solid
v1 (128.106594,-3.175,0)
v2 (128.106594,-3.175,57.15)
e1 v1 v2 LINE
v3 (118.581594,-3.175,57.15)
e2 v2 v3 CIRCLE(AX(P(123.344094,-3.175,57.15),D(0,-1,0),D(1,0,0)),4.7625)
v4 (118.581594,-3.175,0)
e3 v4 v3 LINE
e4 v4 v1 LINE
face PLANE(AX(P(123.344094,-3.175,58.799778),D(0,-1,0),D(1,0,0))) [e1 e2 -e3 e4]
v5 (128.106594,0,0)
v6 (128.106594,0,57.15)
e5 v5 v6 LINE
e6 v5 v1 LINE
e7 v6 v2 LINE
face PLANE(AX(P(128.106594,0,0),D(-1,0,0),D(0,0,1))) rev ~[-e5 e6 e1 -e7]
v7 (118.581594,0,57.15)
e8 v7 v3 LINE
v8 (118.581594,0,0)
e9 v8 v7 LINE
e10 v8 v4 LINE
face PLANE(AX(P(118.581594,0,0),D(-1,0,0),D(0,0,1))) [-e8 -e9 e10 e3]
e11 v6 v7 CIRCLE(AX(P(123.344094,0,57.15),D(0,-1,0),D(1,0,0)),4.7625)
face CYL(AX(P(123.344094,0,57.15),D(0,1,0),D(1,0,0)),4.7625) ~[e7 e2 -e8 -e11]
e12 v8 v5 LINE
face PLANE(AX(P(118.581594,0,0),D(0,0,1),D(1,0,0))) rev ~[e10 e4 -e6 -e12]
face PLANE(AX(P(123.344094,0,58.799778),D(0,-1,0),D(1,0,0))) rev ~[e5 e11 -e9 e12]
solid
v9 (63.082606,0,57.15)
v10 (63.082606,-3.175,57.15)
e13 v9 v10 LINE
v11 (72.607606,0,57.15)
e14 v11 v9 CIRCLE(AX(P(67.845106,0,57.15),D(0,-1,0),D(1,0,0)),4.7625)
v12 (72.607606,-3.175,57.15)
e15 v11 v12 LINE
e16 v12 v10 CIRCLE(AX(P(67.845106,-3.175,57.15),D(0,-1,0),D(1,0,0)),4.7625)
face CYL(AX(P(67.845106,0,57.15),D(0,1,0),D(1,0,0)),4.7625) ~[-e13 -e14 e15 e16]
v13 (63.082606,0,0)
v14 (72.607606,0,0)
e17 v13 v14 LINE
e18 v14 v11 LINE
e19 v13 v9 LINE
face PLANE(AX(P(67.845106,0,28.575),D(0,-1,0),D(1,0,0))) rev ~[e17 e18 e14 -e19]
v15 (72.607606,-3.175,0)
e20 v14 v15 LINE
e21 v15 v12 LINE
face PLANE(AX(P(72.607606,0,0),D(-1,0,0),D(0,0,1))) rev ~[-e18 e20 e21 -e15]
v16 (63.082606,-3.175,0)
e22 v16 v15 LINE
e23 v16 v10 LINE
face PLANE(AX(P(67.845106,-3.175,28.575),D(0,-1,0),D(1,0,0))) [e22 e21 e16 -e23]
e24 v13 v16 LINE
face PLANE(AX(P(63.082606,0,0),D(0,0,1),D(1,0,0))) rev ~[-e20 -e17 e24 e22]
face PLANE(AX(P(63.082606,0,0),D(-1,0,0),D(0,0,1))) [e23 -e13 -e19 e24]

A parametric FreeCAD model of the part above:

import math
import FreeCAD as App
import Part
import Sketcher
from FreeCAD import Vector
Q = App.Units.Quantity

doc = App.newDocument("Part")
params = doc.addObject("Spreadsheet::Sheet", "Params")
for row, (alias, value) in enumerate([
    ("sketch1_radius", "0.1875 in"),
    ("sketch1_height", "2.25 in"),
    ("pad1_length", "0.125 in"),
], start=1):
    params.set(f"A{row}", alias)
    params.set(f"B{row}", "=" + value)
    params.setAlias(f"B{row}", alias)

body = doc.addObject("PartDesign::Body", "Body")
body.AllowCompound = True

# Sketch on XZ plane
sketch1 = body.newObject("Sketcher::SketchObject", "Sketch")
sketch1.AttachmentSupport = (doc.getObject("XZ_Plane"), [""])
sketch1.MapMode = "FlatFace"
sketch1.addGeometry([
    Part.LineSegment(Vector(63.1, 57.1, 0), Vector(63.1, 0, 0)),  # 0
    Part.LineSegment(Vector(63.1, 0, 0), Vector(72.6, 0, 0)),  # 1
    Part.LineSegment(Vector(72.6, 0, 0), Vector(72.6, 57.1, 0)),  # 2
    Part.ArcOfCircle(Part.Circle(Vector(67.8, 57.1, 0), Vector(0, 0, 1), 4.8), math.radians(0), math.radians(180)),  # 3
    Part.ArcOfCircle(Part.Circle(Vector(123.3, 57.1, 0), Vector(0, 0, 1), 4.8), math.radians(0), math.radians(180)),  # 4
    Part.LineSegment(Vector(118.6, 57.1, 0), Vector(118.6, 0, 0)),  # 5
    Part.LineSegment(Vector(118.6, 0, 0), Vector(128.1, 0, 0)),  # 6
    Part.LineSegment(Vector(128.1, 0, 0), Vector(128.1, 57.1, 0)),  # 7
], False)
sketch1.addConstraint([
    Sketcher.Constraint("Coincident", 0, 2, 1, 1),
    Sketcher.Constraint("Coincident", 1, 2, 2, 1),
    Sketcher.Constraint("Tangent", 2, 2, 3, 1),
    Sketcher.Constraint("Tangent", 3, 2, 0, 1),
    Sketcher.Constraint("Tangent", 4, 2, 5, 1),
    Sketcher.Constraint("Coincident", 5, 2, 6, 1),
    Sketcher.Constraint("Coincident", 6, 2, 7, 1),
    Sketcher.Constraint("Tangent", 7, 2, 4, 1),
    Sketcher.Constraint("Vertical", 0),
    Sketcher.Constraint("Horizontal", 1),
    Sketcher.Constraint("Vertical", 2),
    Sketcher.Constraint("Vertical", 5),
    Sketcher.Constraint("Horizontal", 6),
    Sketcher.Constraint("Vertical", 7),
    Sketcher.Constraint("Equal", 3, 4),
    Sketcher.Constraint("PointOnObject", 0, 2, -1),
    Sketcher.Constraint("PointOnObject", 5, 2, -1),
    Sketcher.Constraint("Horizontal", 3, 3, 4, 3),
    Sketcher.Constraint("Radius", 3, Q("0.1875 in")),
    Sketcher.Constraint("DistanceY", 0, 2, 0, 1, Q("2.25 in")),
    Sketcher.Constraint("DistanceX", 0, 2, 6, 2, 65.023988),
    Sketcher.Constraint("DistanceX", -1, 1, 3, 3, 67.845106),
])
sketch1.setExpression("Constraints[18]", "Params.sketch1_radius")
sketch1.setExpression("Constraints[19]", "Params.sketch1_height")
pad1 = body.newObject("PartDesign::Pad", "Pad")
pad1.Profile = sketch1
pad1.setExpression("Length", "Params.pad1_length")

doc.recompute()
